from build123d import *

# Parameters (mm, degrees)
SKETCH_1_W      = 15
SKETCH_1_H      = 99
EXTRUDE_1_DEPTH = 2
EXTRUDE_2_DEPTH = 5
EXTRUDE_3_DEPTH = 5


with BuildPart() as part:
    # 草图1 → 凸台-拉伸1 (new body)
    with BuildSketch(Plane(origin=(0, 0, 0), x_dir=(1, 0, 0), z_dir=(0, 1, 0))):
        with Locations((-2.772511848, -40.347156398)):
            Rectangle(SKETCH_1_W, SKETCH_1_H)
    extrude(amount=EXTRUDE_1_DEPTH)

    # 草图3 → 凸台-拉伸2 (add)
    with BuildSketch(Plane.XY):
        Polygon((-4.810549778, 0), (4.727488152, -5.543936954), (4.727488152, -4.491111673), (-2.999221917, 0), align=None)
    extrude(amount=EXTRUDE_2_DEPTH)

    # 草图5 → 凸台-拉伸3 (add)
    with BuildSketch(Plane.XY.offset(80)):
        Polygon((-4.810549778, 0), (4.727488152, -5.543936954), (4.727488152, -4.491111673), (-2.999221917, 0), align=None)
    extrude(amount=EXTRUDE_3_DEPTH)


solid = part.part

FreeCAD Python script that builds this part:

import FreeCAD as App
import Part
import Sketcher


def add_polygon(sketch, points):
    """Adds a closed chain of lines whose ends are joined by coincident constraints."""
    first, n = sketch.GeometryCount, len(points)
    for a, b in zip(points, points[1:] + points[:1]):
        sketch.addGeometry(Part.LineSegment(App.Vector(*a, 0), App.Vector(*b, 0)), False)
    for i in range(n):
        sketch.addConstraint(Sketcher.Constraint("Coincident", first + i, 2, first + (i + 1) % n, 1))

doc = App.newDocument("Part")
body = doc.addObject("PartDesign::Body", "Body")

sketch1 = body.newObject("Sketcher::SketchObject", "Sketch")
sketch1.AttachmentSupport = (doc.getObject("XZ_Plane"), [""])
sketch1.MapMode = "FlatFace"
add_polygon(sketch1, [(-10, -9), (-10, 90), (5, 90), (5, -9)])
sketch1.addConstraint(Sketcher.Constraint("Vertical", 0))
sketch1.addConstraint(Sketcher.Constraint("Horizontal", 1))
sketch1.addConstraint(Sketcher.Constraint("Vertical", 2))
sketch1.addConstraint(Sketcher.Constraint("Horizontal", 3))
sketch1.addConstraint(Sketcher.Constraint("DistanceX", 1, 1, 1, 2, 15.0))
sketch1.addConstraint(Sketcher.Constraint("DistanceY", 0, 1, 0, 2, 99.0))
sketch1.addConstraint(Sketcher.Constraint("DistanceX", 0, 2, -1, 1, 10.272512))
sketch1.addConstraint(Sketcher.Constraint("DistanceY", -1, 1, 0, 2, 89.847156))
pad1 = body.newObject("PartDesign::Pad", "Pad")
pad1.Profile = sketch1
pad1.Length = 2
pad1.Reversed = True

sketch2 = body.newObject("Sketcher::SketchObject", "Sketch001")
sketch2.AttachmentSupport = (doc.getObject("XY_Plane"), [""])
sketch2.MapMode = "FlatFace"
add_polygon(sketch2, [(-4.8, 0), (4.7, -5.5), (4.7, -4.5), (-3, 0)])
sketch2.addConstraint(Sketcher.Constraint("Vertical", 1))
sketch2.addConstraint(Sketcher.Constraint("Horizontal", 3))
sketch2.addConstraint(Sketcher.Constraint("PointOnObject", 2, 2, -1))
sketch2.addConstraint(Sketcher.Constraint("Parallel", 0, 2))
sketch2.addConstraint(Sketcher.Constraint("Distance", 0, 11.032199))
sketch2.addConstraint(Sketcher.Constraint("Distance", 2, 8.937121))
sketch2.addConstraint(Sketcher.Constraint("DistanceX", 3, 2, 3, 1, 1.811328))
sketch2.addConstraint(Sketcher.Constraint("DistanceX", -1, 1, 0, 2, 4.727488))
pad2 = body.newObject("PartDesign::Pad", "Pad001")
pad2.Profile = sketch2
pad2.Length = 5

sketch3 = body.newObject("Sketcher::SketchObject", "Sketch002")
sketch3.AttachmentSupport = (doc.getObject("XY_Plane"), [""])
sketch3.MapMode = "FlatFace"
sketch3.AttachmentOffset = App.Placement(App.Vector(0, 0, 80), App.Rotation())
add_polygon(sketch3, [(-4.8, 0), (4.7, -5.5), (4.7, -4.5), (-3, 0)])
sketch3.addConstraint(Sketcher.Constraint("Vertical", 1))
sketch3.addConstraint(Sketcher.Constraint("Horizontal", 3))
sketch3.addConstraint(Sketcher.Constraint("PointOnObject", 2, 2, -1))
sketch3.addConstraint(Sketcher.Constraint("Parallel", 0, 2))
sketch3.addConstraint(Sketcher.Constraint("Distance", 0, 11.032199))
sketch3.addConstraint(Sketcher.Constraint("Distance", 2, 8.937121))
sketch3.addConstraint(Sketcher.Constraint("DistanceX", 3, 2, 3, 1, 1.811328))
sketch3.addConstraint(Sketcher.Constraint("DistanceX", -1, 1, 0, 2, 4.727488))
pad3 = body.newObject("PartDesign::Pad", "Pad002")
pad3.Profile = sketch3
pad3.Length = 5

doc.recompute()
